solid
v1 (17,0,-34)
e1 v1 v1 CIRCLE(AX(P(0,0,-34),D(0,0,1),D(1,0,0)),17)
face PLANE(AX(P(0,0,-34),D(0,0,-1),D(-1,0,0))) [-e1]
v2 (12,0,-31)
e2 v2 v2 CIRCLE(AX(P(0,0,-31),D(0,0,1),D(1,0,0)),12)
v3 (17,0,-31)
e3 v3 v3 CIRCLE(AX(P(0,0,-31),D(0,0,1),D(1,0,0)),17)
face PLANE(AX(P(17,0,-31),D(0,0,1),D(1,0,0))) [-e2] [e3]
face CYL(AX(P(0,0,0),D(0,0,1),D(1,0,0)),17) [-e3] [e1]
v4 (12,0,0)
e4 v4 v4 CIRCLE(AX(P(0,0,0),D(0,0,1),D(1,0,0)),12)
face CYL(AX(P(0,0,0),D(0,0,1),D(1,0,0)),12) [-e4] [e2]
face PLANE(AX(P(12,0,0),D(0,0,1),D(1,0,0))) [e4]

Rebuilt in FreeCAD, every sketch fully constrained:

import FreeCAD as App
import Part
import Sketcher

V = App.Vector


def add_polygon(sketch, points):
    """Adds a closed chain of lines whose ends are joined by coincident constraints."""
    first, n = sketch.GeometryCount, len(points)
    for a, b in zip(points, points[1:] + points[:1]):
        sketch.addGeometry(Part.LineSegment(App.Vector(*a, 0), App.Vector(*b, 0)), False)
    for i in range(n):
        sketch.addConstraint(Sketcher.Constraint("Coincident", first + i, 2, first + (i + 1) % n, 1))

doc = App.newDocument("Part")
params = doc.addObject("Spreadsheet::Sheet", "Params")
for row, (alias, value) in enumerate([
    ("sketch1_width", "12 mm"),
    ("sketch1_width2", "5 mm"),
    ("sketch1_height", "34 mm"),
    ("sketch1_height2", "31 mm"),
    ("revolution_angle", "360 deg"),
], start=1):
    params.set(f"A{row}", alias)
    params.set(f"B{row}", "=" + value)
    params.setAlias(f"B{row}", alias)

body = doc.addObject("PartDesign::Body", "Body")

# Sketch on XZ plane
sketch1 = doc.addObject("Sketcher::SketchObject", "Sketch")
body.addObject(sketch1)
sketch1.AttachmentSupport = (doc.XZ_Plane, [""])
sketch1.MapMode = "FlatFace"
add_polygon(sketch1, [(0, -34), (0, 0), (12, 0), (12, -31), (17, -31), (17, -34)])  # lines 0-5
sketch1.addConstraint([
    Sketcher.Constraint("Vertical", 0),
    Sketcher.Constraint("Horizontal", 1),
    Sketcher.Constraint("Vertical", 2),
    Sketcher.Constraint("Horizontal", 3),
    Sketcher.Constraint("Vertical", 4),
    Sketcher.Constraint("Horizontal", 5),
    Sketcher.Constraint("Coincident", 0, 2, -1, 1),
    Sketcher.Constraint("DistanceX", 1, 1, 1, 2, 12.0),
    Sketcher.Constraint("DistanceX", 3, 1, 3, 2, 5.0),
    Sketcher.Constraint("DistanceY", 0, 1, 0, 2, 34.0),
    Sketcher.Constraint("DistanceY", 2, 2, 2, 1, 31.0),
])
sketch1.setExpression("Constraints[13]", "Params.sketch1_width")
sketch1.setExpression("Constraints[14]", "Params.sketch1_width2")
sketch1.setExpression("Constraints[15]", "Params.sketch1_height")
sketch1.setExpression("Constraints[16]", "Params.sketch1_height2")
revolution = doc.addObject("PartDesign::Revolution", "Revolution")
body.addObject(revolution)
revolution.Profile = sketch1
revolution.ReferenceAxis = (sketch1, ["V_Axis"])
revolution.setExpression("Angle", "Params.revolution_angle")

doc.recompute()
